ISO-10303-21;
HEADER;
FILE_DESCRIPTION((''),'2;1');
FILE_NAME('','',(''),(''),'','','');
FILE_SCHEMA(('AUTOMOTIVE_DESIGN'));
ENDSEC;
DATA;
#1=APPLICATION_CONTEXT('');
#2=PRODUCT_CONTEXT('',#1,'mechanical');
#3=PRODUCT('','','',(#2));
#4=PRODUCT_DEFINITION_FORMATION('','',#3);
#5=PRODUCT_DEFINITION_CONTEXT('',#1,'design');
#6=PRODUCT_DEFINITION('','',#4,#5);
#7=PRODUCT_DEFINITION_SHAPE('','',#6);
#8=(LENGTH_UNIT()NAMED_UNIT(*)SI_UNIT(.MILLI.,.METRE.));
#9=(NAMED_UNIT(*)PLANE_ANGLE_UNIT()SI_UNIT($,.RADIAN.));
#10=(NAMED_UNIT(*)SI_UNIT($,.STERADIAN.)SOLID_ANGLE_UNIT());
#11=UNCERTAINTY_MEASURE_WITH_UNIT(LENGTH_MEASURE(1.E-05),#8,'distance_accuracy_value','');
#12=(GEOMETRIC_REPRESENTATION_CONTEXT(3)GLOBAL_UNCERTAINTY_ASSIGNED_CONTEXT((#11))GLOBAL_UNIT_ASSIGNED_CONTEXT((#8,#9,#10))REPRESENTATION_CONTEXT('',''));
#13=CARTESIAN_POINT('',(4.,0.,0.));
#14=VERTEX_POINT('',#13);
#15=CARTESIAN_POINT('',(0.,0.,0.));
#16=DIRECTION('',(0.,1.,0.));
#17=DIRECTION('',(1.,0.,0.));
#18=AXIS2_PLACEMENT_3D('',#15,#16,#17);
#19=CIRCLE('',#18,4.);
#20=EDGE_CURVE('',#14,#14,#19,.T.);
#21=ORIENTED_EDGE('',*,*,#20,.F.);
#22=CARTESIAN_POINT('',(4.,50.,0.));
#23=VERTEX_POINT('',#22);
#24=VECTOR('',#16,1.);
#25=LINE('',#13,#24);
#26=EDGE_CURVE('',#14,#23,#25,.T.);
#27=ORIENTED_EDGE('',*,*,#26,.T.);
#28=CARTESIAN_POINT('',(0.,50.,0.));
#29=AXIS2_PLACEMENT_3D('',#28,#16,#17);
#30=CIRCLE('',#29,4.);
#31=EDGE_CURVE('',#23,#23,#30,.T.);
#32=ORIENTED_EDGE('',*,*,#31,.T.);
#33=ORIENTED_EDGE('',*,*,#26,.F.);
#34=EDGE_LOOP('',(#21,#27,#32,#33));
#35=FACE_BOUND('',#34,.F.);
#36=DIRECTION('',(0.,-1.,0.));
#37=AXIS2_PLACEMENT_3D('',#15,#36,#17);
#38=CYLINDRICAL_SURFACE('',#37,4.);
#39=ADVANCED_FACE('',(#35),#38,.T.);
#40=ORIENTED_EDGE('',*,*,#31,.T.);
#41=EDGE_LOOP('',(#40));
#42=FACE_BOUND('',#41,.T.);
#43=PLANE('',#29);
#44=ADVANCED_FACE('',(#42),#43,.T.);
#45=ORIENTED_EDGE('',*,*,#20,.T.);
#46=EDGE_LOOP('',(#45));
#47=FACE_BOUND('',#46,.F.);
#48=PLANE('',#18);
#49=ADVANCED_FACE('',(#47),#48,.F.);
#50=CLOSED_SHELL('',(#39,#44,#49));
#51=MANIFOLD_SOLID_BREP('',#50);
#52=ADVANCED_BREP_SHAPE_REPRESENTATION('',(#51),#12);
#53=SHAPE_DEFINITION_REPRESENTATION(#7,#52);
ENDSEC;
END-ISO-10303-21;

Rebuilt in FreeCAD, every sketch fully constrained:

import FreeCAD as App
import Part
import Sketcher

V = App.Vector

doc = App.newDocument("Part")
body = doc.addObject("PartDesign::Body", "Body")

# Sketch on XZ plane
sketch1 = doc.addObject("Sketcher::SketchObject", "Sketch")
body.addObject(sketch1)
sketch1.AttachmentSupport = (doc.XZ_Plane, [""])
sketch1.MapMode = "FlatFace"
sketch1.addGeometry(Part.Circle(V(0, 0, 0), V(0, 0, 1), 4), False)
sketch1.addConstraint([
    Sketcher.Constraint("Coincident", 0, 3, -1, 1),
    Sketcher.Constraint("Diameter", 0, 8.0),
])
pad1 = doc.addObject("PartDesign::Pad", "Pad")
body.addObject(pad1)
pad1.Profile = sketch1
pad1.Length = 50
pad1.Reversed = True

doc.recompute()
